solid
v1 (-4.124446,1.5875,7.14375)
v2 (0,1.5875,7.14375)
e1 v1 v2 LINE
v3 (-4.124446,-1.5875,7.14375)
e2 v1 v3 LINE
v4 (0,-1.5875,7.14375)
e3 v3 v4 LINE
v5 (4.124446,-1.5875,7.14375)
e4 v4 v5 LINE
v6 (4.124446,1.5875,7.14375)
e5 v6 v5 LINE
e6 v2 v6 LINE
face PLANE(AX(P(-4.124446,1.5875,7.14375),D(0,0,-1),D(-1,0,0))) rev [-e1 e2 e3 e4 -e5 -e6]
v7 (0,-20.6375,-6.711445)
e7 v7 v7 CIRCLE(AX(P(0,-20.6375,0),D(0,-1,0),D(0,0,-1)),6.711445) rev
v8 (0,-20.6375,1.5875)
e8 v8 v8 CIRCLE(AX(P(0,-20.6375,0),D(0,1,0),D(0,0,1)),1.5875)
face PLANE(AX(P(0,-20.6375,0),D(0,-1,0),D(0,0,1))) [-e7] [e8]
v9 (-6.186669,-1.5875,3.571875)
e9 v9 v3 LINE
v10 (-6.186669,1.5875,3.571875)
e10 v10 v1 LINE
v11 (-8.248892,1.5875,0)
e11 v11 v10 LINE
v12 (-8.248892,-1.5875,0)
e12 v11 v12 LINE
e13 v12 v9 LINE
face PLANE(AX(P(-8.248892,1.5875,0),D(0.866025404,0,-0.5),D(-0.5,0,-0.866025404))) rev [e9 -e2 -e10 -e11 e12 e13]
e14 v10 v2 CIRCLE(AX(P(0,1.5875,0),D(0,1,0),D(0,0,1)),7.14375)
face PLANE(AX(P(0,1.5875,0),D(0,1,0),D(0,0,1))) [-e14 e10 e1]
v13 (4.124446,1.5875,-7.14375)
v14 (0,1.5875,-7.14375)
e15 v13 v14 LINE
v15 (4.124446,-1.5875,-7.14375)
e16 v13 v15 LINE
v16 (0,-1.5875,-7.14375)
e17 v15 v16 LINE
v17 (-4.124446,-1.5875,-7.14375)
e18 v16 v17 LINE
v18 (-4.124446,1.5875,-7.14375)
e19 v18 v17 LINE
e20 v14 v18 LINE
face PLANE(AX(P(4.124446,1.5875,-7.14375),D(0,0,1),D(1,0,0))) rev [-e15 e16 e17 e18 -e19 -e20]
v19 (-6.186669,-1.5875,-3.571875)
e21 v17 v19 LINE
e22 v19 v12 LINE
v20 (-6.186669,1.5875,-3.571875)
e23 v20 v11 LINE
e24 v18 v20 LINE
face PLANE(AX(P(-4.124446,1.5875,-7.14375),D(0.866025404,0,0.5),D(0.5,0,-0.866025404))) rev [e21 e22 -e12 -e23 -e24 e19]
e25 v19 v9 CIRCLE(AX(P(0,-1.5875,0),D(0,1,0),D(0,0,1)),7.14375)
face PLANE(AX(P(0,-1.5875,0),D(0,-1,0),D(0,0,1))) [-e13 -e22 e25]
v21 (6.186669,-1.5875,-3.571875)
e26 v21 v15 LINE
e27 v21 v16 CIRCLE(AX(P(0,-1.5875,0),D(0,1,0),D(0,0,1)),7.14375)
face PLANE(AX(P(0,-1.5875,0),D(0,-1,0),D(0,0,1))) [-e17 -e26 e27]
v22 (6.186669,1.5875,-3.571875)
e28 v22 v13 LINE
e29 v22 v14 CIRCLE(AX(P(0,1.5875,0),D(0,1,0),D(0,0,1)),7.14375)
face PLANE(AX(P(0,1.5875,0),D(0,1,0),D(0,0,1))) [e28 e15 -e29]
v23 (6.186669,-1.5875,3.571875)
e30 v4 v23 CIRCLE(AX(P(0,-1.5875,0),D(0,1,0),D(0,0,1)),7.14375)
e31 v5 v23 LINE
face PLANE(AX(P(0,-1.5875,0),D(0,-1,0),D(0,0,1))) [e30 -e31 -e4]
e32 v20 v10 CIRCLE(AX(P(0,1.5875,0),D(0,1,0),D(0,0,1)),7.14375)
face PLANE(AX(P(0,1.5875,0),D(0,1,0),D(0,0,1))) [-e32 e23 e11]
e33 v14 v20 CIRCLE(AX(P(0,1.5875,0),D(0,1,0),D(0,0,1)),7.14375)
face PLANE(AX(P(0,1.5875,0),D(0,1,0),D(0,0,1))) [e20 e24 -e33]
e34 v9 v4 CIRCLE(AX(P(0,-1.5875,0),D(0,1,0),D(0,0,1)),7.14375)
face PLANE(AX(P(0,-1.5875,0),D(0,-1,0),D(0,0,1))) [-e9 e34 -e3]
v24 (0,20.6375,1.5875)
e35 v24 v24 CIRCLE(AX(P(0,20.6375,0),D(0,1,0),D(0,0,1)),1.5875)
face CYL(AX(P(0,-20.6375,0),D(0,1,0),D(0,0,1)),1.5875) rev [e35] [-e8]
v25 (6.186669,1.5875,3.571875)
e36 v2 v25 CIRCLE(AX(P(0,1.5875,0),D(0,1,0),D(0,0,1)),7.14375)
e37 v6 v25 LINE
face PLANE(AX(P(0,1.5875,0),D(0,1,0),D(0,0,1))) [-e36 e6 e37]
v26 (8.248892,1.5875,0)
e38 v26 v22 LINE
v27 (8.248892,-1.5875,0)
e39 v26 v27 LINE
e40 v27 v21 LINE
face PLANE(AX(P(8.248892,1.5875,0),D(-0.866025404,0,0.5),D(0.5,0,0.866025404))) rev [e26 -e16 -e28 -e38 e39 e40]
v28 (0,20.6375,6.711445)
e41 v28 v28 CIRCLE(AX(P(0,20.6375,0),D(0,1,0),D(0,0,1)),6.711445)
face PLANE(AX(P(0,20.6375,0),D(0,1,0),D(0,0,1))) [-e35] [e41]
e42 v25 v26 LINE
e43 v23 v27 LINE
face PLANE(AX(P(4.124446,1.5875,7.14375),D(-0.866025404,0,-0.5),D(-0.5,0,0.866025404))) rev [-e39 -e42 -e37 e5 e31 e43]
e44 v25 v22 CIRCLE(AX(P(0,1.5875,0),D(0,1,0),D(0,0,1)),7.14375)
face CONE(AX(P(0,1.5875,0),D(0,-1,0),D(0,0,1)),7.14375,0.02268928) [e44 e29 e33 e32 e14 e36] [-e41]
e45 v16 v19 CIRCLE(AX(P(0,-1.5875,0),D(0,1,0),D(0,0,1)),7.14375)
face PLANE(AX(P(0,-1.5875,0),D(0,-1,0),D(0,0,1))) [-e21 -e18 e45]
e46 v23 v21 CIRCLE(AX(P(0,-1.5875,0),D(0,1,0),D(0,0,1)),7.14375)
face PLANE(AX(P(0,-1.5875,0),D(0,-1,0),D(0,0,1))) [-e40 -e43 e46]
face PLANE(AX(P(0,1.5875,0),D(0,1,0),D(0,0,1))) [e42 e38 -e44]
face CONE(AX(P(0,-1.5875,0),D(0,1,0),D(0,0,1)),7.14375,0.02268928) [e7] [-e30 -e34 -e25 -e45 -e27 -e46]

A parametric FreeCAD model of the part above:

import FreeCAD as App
import Part
import Sketcher
Q = App.Units.Quantity

doc = App.newDocument("Part")
body = doc.addObject("PartDesign::Body", "Body")

# Sketch on XZ plane
sketch1 = body.newObject("Sketcher::SketchObject", "Sketch")
sketch1.AttachmentSupport = (doc.getObject("XZ_Plane"), [""])
sketch1.MapMode = "FlatFace"
sketch1.addGeometry([
    Part.LineSegment(App.Vector(8.248892, 0, 0), App.Vector(4.124446, -7.14375, 0)),  # 0
    Part.LineSegment(App.Vector(4.124446, -7.14375, 0), App.Vector(-4.124446, -7.14375, 0)),  # 1
    Part.LineSegment(App.Vector(-4.124446, -7.14375, 0), App.Vector(-8.248892, 0, 0)),  # 2
    Part.LineSegment(App.Vector(-8.248892, 0, 0), App.Vector(-4.124446, 7.14375, 0)),  # 3
    Part.LineSegment(App.Vector(-4.124446, 7.14375, 0), App.Vector(4.124446, 7.14375, 0)),  # 4
    Part.LineSegment(App.Vector(4.124446, 7.14375, 0), App.Vector(8.248892, 0, 0)),  # 5
], False)
sketch1.addConstraint([
    Sketcher.Constraint("Coincident", 0, 2, 1, 1),
    Sketcher.Constraint("Coincident", 1, 2, 2, 1),
    Sketcher.Constraint("Coincident", 2, 2, 3, 1),
    Sketcher.Constraint("Coincident", 3, 2, 4, 1),
    Sketcher.Constraint("Coincident", 4, 2, 5, 1),
    Sketcher.Constraint("Coincident", 5, 2, 0, 1),
    Sketcher.Constraint("Horizontal", 1),
    Sketcher.Constraint("Horizontal", 4),
    Sketcher.Constraint("Symmetric", 0, 2, 3, 2, -1, 1),
    Sketcher.Constraint("Symmetric", 2, 2, 5, 2, -1, 1),
    Sketcher.Constraint("PointOnObject", 2, 2, -1),
    Sketcher.Constraint("Parallel", 2, 5),
    Sketcher.Constraint("Vertical", 1, 2, 3, 2),
    Sketcher.Constraint("Angle", 0, Q("-120 deg")),
    Sketcher.Constraint("DistanceY", 0, 2, -1, 1, Q("0.28125 in")),
    Sketcher.Constraint("DistanceX", 1, 2, 1, 1, Q("8.248892 mm")),
])
pad1 = body.newObject("PartDesign::Pad", "Pad")
pad1.Profile = sketch1
pad1.Length = Q("0.0625 in")
pad1.Reversed = True

# Sketch on XZ plane
sketch2 = body.newObject("Sketcher::SketchObject", "Sketch001")
sketch2.AttachmentSupport = (doc.getObject("XZ_Plane"), [""])
sketch2.MapMode = "FlatFace"
sketch2.AttachmentOffset = App.Placement(App.Vector(0, 0, -0.0625 * 25.4), App.Rotation())
sketch2.addGeometry(Part.Circle(App.Vector(0, 0, 0), App.Vector(0, 0, 1), 7.14375), False)
sketch2.addConstraint([
    Sketcher.Constraint("Coincident", 0, 3, -1, 1),
    Sketcher.Constraint("Diameter", 0, Q("0.5625 in")),
])
pad2 = body.newObject("PartDesign::Pad", "Pad001")
pad2.Profile = sketch2
pad2.Length = Q("0.75 in")
pad2.Reversed = True
pad2.TaperAngle = -1.3
doc.recompute()

mirrored = body.newObject("PartDesign::Mirrored", "Mirrored")
mirrored.Originals = [pad1, pad2]
mirrored.MirrorPlane = (doc.getObject("XZ_Plane"), [""])
body.Tip = mirrored

# Sketch on XZ plane
sketch3 = body.newObject("Sketcher::SketchObject", "Sketch002")
sketch3.AttachmentSupport = (doc.getObject("XZ_Plane"), [""])
sketch3.MapMode = "FlatFace"
sketch3.AttachmentOffset = App.Placement(App.Vector(0, 0, -0.8125 * 25.4), App.Rotation())
sketch3.addGeometry(Part.Circle(App.Vector(0, 0, 0), App.Vector(0, 0, 1), 1.5875), False)
sketch3.addConstraint([
    Sketcher.Constraint("Coincident", 0, 3, -1, 1),
    Sketcher.Constraint("Diameter", 0, Q("0.125 in")),
])
pocket1 = body.newObject("PartDesign::Pocket", "Pocket")
pocket1.Profile = sketch3
pocket1.Type = "ThroughAll"
pocket1.Reversed = True

doc.recompute()
